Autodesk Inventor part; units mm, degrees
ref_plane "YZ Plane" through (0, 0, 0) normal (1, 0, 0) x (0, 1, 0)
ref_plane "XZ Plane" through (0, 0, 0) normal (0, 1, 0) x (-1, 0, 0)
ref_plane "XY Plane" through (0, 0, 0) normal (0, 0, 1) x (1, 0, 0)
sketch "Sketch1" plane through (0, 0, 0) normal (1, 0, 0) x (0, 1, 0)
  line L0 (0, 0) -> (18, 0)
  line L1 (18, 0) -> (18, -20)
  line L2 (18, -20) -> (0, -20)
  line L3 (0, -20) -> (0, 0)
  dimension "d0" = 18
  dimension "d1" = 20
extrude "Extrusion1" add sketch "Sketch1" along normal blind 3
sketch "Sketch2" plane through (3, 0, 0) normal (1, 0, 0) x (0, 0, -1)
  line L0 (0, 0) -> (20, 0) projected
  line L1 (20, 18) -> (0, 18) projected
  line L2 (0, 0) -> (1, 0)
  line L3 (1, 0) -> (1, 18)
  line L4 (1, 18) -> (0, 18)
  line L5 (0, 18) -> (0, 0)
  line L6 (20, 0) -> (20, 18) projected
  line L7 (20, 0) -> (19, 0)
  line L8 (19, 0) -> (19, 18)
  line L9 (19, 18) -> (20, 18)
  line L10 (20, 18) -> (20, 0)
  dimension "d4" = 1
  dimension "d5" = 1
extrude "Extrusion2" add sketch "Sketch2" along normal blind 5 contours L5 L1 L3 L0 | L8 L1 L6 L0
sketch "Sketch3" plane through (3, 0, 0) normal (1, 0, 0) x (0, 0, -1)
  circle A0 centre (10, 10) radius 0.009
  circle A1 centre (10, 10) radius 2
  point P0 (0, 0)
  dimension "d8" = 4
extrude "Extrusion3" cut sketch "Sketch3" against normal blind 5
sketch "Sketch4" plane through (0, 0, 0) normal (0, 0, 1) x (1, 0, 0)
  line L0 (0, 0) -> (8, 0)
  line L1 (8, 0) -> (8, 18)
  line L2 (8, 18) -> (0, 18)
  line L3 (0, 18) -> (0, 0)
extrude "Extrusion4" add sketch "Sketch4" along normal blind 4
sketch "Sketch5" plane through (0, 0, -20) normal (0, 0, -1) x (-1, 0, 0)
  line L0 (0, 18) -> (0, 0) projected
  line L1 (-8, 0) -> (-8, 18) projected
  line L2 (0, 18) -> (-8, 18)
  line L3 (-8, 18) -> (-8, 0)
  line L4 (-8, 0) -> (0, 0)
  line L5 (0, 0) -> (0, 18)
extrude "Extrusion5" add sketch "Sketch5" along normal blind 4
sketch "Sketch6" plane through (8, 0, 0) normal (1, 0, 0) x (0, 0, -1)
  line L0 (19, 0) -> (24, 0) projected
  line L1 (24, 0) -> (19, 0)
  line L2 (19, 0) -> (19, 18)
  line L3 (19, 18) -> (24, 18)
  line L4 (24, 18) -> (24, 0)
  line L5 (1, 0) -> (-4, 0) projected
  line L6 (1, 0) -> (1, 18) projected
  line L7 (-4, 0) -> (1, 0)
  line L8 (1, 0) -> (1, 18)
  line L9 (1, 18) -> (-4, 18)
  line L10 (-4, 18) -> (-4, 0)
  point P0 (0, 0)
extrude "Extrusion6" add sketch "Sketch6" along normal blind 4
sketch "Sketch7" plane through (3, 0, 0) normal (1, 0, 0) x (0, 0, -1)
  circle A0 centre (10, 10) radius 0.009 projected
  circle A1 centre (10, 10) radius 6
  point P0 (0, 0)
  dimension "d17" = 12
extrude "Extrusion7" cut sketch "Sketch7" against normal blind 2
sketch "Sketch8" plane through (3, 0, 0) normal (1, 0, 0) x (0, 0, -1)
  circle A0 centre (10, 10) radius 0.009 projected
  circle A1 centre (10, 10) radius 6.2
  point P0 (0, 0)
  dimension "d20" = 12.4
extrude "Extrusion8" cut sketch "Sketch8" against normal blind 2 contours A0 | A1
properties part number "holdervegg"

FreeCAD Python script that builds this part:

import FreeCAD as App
import Part
import Sketcher


def add_polygon(sketch, points):
    """Adds a closed chain of lines whose ends are joined by coincident constraints."""
    first, n = sketch.GeometryCount, len(points)
    for a, b in zip(points, points[1:] + points[:1]):
        sketch.addGeometry(Part.LineSegment(App.Vector(*a, 0), App.Vector(*b, 0)), False)
    for i in range(n):
        sketch.addConstraint(Sketcher.Constraint("Coincident", first + i, 2, first + (i + 1) % n, 1))

doc = App.newDocument("Part")
body = doc.addObject("PartDesign::Body", "Body")
body.AllowCompound = True

sketch1 = doc.addObject("Sketcher::SketchObject", "Sketch")
body.addObject(sketch1)
sketch1.AttachmentSupport = (doc.YZ_Plane, [""])
sketch1.MapMode = "FlatFace"
add_polygon(sketch1, [(18, 0), (0, 0), (0, -20), (18, -20)])
sketch1.addConstraint(Sketcher.Constraint("Horizontal", 0))
sketch1.addConstraint(Sketcher.Constraint("Vertical", 1))
sketch1.addConstraint(Sketcher.Constraint("Horizontal", 2))
sketch1.addConstraint(Sketcher.Constraint("Vertical", 3))
sketch1.addConstraint(Sketcher.Constraint("Coincident", 0, 2, -1, 1))
sketch1.addConstraint(Sketcher.Constraint("DistanceX", 0, 2, 0, 1, 18.0))
sketch1.addConstraint(Sketcher.Constraint("DistanceY", 1, 2, 1, 1, 20.0))
pad1 = doc.addObject("PartDesign::Pad", "Pad")
body.addObject(pad1)
pad1.Profile = sketch1
pad1.Length = 3

sketch2 = doc.addObject("Sketcher::SketchObject", "Sketch001")
body.addObject(sketch2)
sketch2.AttachmentSupport = (doc.YZ_Plane, [""])
sketch2.MapMode = "FlatFace"
sketch2.AttachmentOffset = App.Placement(App.Vector(0, 0, 3), App.Rotation())
add_polygon(sketch2, [(18, 0), (0, 0), (0, -1), (18, -1)])
add_polygon(sketch2, [(18, -19), (0, -19), (0, -20), (18, -20)])
sketch2.addConstraint(Sketcher.Constraint("Horizontal", 0))
sketch2.addConstraint(Sketcher.Constraint("Vertical", 1))
sketch2.addConstraint(Sketcher.Constraint("Horizontal", 2))
sketch2.addConstraint(Sketcher.Constraint("Vertical", 3))
sketch2.addConstraint(Sketcher.Constraint("Horizontal", 4))
sketch2.addConstraint(Sketcher.Constraint("Vertical", 5))
sketch2.addConstraint(Sketcher.Constraint("Horizontal", 6))
sketch2.addConstraint(Sketcher.Constraint("Vertical", 7))
sketch2.addConstraint(Sketcher.Constraint("Coincident", 0, 2, -1, 1))
sketch2.addConstraint(Sketcher.Constraint("PointOnObject", 4, 2, -2))
sketch2.addConstraint(Sketcher.Constraint("Vertical", 3, 2, 6, 2))
sketch2.addConstraint(Sketcher.Constraint("Equal", 3, 5))
sketch2.addConstraint(Sketcher.Constraint("DistanceY", 1, 2, 1, 1, 1.0))
sketch2.addConstraint(Sketcher.Constraint("DistanceX", 0, 2, 0, 1, 18.0))
sketch2.addConstraint(Sketcher.Constraint("DistanceY", 4, 2, -1, 1, 19.0))
pad2 = doc.addObject("PartDesign::Pad", "Pad001")
body.addObject(pad2)
pad2.Profile = sketch2
pad2.Length = 5

sketch3 = doc.addObject("Sketcher::SketchObject", "Sketch002")
body.addObject(sketch3)
sketch3.AttachmentSupport = (doc.YZ_Plane, [""])
sketch3.MapMode = "FlatFace"
sketch3.AttachmentOffset = App.Placement(App.Vector(0, 0, 3), App.Rotation())
sketch3.addGeometry(Part.Circle(App.Vector(10, -10, 0), App.Vector(0, 0, 1), 2), False)
sketch3.addGeometry(Part.Circle(App.Vector(10, -10, 0), App.Vector(0, 0, 1), 0.009), False)
sketch3.addConstraint(Sketcher.Constraint("Coincident", 1, 3, 0, 3))
sketch3.addConstraint(Sketcher.Constraint("Diameter", 0, 4.0))
sketch3.addConstraint(Sketcher.Constraint("Diameter", 1, 0.018))
sketch3.addConstraint(Sketcher.Constraint("DistanceX", -1, 1, 0, 3, 10.0))
sketch3.addConstraint(Sketcher.Constraint("DistanceY", 0, 3, -1, 1, 10.0))
pocket1 = doc.addObject("PartDesign::Pocket", "Pocket")
body.addObject(pocket1)
pocket1.Profile = sketch3
pocket1.Length = 5

sketch4 = doc.addObject("Sketcher::SketchObject", "Sketch003")
body.addObject(sketch4)
sketch4.AttachmentSupport = (doc.XY_Plane, [""])
sketch4.MapMode = "FlatFace"
add_polygon(sketch4, [(0, 18), (0, 0), (8, 0), (8, 18)])
sketch4.addConstraint(Sketcher.Constraint("Vertical", 0))
sketch4.addConstraint(Sketcher.Constraint("Horizontal", 1))
sketch4.addConstraint(Sketcher.Constraint("Vertical", 2))
sketch4.addConstraint(Sketcher.Constraint("Horizontal", 3))
sketch4.addConstraint(Sketcher.Constraint("Coincident", 0, 2, -1, 1))
sketch4.addConstraint(Sketcher.Constraint("DistanceX", 1, 1, 1, 2, 8.0))
sketch4.addConstraint(Sketcher.Constraint("DistanceY", 0, 2, 0, 1, 18.0))
pad3 = doc.addObject("PartDesign::Pad", "Pad002")
body.addObject(pad3)
pad3.Profile = sketch4
pad3.Length = 4

sketch5 = doc.addObject("Sketcher::SketchObject", "Sketch004")
body.addObject(sketch5)
sketch5.AttachmentSupport = (doc.XY_Plane, [""])
sketch5.MapMode = "FlatFace"
sketch5.AttachmentOffset = App.Placement(App.Vector(0, 0, -20), App.Rotation())
add_polygon(sketch5, [(0, 0), (0, 18), (8, 18), (8, 0)])
sketch5.addConstraint(Sketcher.Constraint("Vertical", 0))
sketch5.addConstraint(Sketcher.Constraint("Horizontal", 1))
sketch5.addConstraint(Sketcher.Constraint("Vertical", 2))
sketch5.addConstraint(Sketcher.Constraint("Horizontal", 3))
sketch5.addConstraint(Sketcher.Constraint("Coincident", 3, 2, -1, 1))
sketch5.addConstraint(Sketcher.Constraint("DistanceX", 1, 1, 1, 2, 8.0))
sketch5.addConstraint(Sketcher.Constraint("DistanceY", 0, 1, 0, 2, 18.0))
pad4 = doc.addObject("PartDesign::Pad", "Pad003")
body.addObject(pad4)
pad4.Profile = sketch5
pad4.Length = 4
pad4.Reversed = True

sketch6 = doc.addObject("Sketcher::SketchObject", "Sketch005")
body.addObject(sketch6)
sketch6.AttachmentSupport = (doc.YZ_Plane, [""])
sketch6.MapMode = "FlatFace"
sketch6.AttachmentOffset = App.Placement(App.Vector(0, 0, 8), App.Rotation())
add_polygon(sketch6, [(18, -19), (0, -19), (0, -24), (18, -24)])
add_polygon(sketch6, [(0, 4), (0, -1), (18, -1), (18, 4)])
sketch6.addConstraint(Sketcher.Constraint("Horizontal", 0))
sketch6.addConstraint(Sketcher.Constraint("Vertical", 1))
sketch6.addConstraint(Sketcher.Constraint("Horizontal", 2))
sketch6.addConstraint(Sketcher.Constraint("Vertical", 3))
sketch6.addConstraint(Sketcher.Constraint("Vertical", 4))
sketch6.addConstraint(Sketcher.Constraint("Horizontal", 5))
sketch6.addConstraint(Sketcher.Constraint("Vertical", 6))
sketch6.addConstraint(Sketcher.Constraint("Horizontal", 7))
sketch6.addConstraint(Sketcher.Constraint("PointOnObject", 0, 2, -2))
sketch6.addConstraint(Sketcher.Constraint("PointOnObject", 4, 2, -2))
sketch6.addConstraint(Sketcher.Constraint("Vertical", 3, 2, 5, 2))
sketch6.addConstraint(Sketcher.Constraint("Equal", 3, 4))
sketch6.addConstraint(Sketcher.Constraint("DistanceX", 0, 2, 0, 1, 18.0))
sketch6.addConstraint(Sketcher.Constraint("DistanceY", 1, 2, 1, 1, 5.0))
sketch6.addConstraint(Sketcher.Constraint("DistanceY", 0, 2, -1, 1, 19.0))
sketch6.addConstraint(Sketcher.Constraint("DistanceY", 4, 2, -1, 1, 1.0))
pad5 = doc.addObject("PartDesign::Pad", "Pad004")
body.addObject(pad5)
pad5.Profile = sketch6
pad5.Length = 4

sketch7 = doc.addObject("Sketcher::SketchObject", "Sketch006")
body.addObject(sketch7)
sketch7.AttachmentSupport = (doc.YZ_Plane, [""])
sketch7.MapMode = "FlatFace"
sketch7.AttachmentOffset = App.Placement(App.Vector(0, 0, 3), App.Rotation())
sketch7.addGeometry(Part.Circle(App.Vector(10, -10, 0), App.Vector(0, 0, 1), 6), False)
sketch7.addGeometry(Part.Circle(App.Vector(10, -10, 0), App.Vector(0, 0, 1), 0.009), False)
sketch7.addConstraint(Sketcher.Constraint("Coincident", 1, 3, 0, 3))
sketch7.addConstraint(Sketcher.Constraint("Diameter", 0, 12.0))
sketch7.addConstraint(Sketcher.Constraint("Diameter", 1, 0.018))
sketch7.addConstraint(Sketcher.Constraint("DistanceX", -1, 1, 0, 3, 10.0))
sketch7.addConstraint(Sketcher.Constraint("DistanceY", 0, 3, -1, 1, 10.0))
pocket2 = doc.addObject("PartDesign::Pocket", "Pocket001")
body.addObject(pocket2)
pocket2.Profile = sketch7
pocket2.Length = 2

sketch8 = doc.addObject("Sketcher::SketchObject", "Sketch007")
body.addObject(sketch8)
sketch8.AttachmentSupport = (doc.YZ_Plane, [""])
sketch8.MapMode = "FlatFace"
sketch8.AttachmentOffset = App.Placement(App.Vector(0, 0, 3), App.Rotation())
sketch8.addGeometry(Part.Circle(App.Vector(10, -10, 0), App.Vector(0, 0, 1), 6), False)
sketch8.addConstraint(Sketcher.Constraint("Diameter", 0, 12.4))
sketch8.addConstraint(Sketcher.Constraint("DistanceX", -1, 1, 0, 3, 10.0))
sketch8.addConstraint(Sketcher.Constraint("DistanceY", 0, 3, -1, 1, 10.0))
pocket3 = doc.addObject("PartDesign::Pocket", "Pocket002")
body.addObject(pocket3)
pocket3.Profile = sketch8
pocket3.Length = 2

doc.recompute()
